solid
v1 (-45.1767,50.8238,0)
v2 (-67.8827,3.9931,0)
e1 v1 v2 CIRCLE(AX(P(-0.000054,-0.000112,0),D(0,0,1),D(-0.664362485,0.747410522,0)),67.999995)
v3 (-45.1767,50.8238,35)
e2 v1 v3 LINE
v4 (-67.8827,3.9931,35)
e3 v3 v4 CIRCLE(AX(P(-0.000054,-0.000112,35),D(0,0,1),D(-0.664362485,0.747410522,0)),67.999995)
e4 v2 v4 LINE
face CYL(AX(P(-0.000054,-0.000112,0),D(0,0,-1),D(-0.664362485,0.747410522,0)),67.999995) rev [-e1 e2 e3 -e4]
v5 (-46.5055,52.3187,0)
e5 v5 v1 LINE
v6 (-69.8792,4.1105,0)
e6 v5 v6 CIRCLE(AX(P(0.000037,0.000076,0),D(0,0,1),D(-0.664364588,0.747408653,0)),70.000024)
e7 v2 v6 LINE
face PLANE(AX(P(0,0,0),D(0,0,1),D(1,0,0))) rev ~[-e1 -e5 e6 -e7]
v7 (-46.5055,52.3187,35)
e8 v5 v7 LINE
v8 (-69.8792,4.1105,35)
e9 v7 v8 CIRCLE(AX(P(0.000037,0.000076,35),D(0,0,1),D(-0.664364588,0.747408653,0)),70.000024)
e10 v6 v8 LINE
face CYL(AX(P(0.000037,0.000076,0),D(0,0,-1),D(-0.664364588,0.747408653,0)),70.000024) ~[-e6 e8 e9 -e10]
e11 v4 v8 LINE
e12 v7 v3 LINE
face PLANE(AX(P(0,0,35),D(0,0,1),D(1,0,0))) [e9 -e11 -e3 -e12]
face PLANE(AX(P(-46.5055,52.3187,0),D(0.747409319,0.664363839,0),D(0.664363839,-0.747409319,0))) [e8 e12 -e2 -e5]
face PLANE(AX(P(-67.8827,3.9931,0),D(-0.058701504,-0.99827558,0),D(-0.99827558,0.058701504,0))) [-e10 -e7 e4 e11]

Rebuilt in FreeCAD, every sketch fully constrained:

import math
import FreeCAD as App
import Part
import Sketcher
Q = App.Units.Quantity

doc = App.newDocument("Part")
body = doc.addObject("PartDesign::Body", "Body")

# Sketch on XY plane
sketch1 = body.newObject("Sketcher::SketchObject", "Sketch")
sketch1.AttachmentSupport = (doc.getObject("XY_Plane"), [""])
sketch1.MapMode = "FlatFace"
sketch1.addGeometry(Part.ArcOfCircle(Part.Circle(App.Vector(0, 0, 0), App.Vector(0, 0, 1), 67.999948), math.radians(131.633532), math.radians(176.633539)), False)
sketch1.addGeometry(Part.LineSegment(App.Vector(-45.1767, 50.8238, 0), App.Vector(-46.5055, 52.3187, 0)), False)
sketch1.addGeometry(Part.ArcOfCircle(Part.Circle(App.Vector(0, 0, 0), App.Vector(0, 0, 1), 70.000056), math.radians(131.633533), math.radians(176.633573)), False)
sketch1.addGeometry(Part.LineSegment(App.Vector(-69.8792, 4.1105, 0), App.Vector(-67.8827, 3.9931, 0)), False)
sketch1.addConstraint(Sketcher.Constraint("Coincident", 0, 1, 1, 1))
sketch1.addConstraint(Sketcher.Constraint("Coincident", 1, 2, 2, 1))
sketch1.addConstraint(Sketcher.Constraint("Coincident", 2, 2, 3, 1))
sketch1.addConstraint(Sketcher.Constraint("Coincident", 3, 2, 0, 2))
sketch1.addConstraint(Sketcher.Constraint("Coincident", 0, 3, -1, 1))
sketch1.addConstraint(Sketcher.Constraint("Coincident", 2, 3, -1, 1))
sketch1.addConstraint(Sketcher.Constraint("Radius", 0, Q("68 mm")))
sketch1.addConstraint(Sketcher.Constraint("Radius", 2, Q("70 mm")))
sketch1.addConstraint(Sketcher.Constraint("DistanceY", -1, 1, 3, 2, Q("3.993 mm")))
sketch1.addConstraint(Sketcher.Constraint("DistanceY", 0, 1, 1, 2, Q("1.495 mm")))
sketch1.addConstraint(Sketcher.Constraint("DistanceX", 3, 2, 0, 1, Q("22.706 mm")))
sketch1.addConstraint(Sketcher.Constraint("DistanceX", 2, 2, -1, 1, Q("69.8793 mm")))
pad1 = body.newObject("PartDesign::Pad", "Pad")
pad1.Profile = sketch1
pad1.Length = 35

doc.recompute()
